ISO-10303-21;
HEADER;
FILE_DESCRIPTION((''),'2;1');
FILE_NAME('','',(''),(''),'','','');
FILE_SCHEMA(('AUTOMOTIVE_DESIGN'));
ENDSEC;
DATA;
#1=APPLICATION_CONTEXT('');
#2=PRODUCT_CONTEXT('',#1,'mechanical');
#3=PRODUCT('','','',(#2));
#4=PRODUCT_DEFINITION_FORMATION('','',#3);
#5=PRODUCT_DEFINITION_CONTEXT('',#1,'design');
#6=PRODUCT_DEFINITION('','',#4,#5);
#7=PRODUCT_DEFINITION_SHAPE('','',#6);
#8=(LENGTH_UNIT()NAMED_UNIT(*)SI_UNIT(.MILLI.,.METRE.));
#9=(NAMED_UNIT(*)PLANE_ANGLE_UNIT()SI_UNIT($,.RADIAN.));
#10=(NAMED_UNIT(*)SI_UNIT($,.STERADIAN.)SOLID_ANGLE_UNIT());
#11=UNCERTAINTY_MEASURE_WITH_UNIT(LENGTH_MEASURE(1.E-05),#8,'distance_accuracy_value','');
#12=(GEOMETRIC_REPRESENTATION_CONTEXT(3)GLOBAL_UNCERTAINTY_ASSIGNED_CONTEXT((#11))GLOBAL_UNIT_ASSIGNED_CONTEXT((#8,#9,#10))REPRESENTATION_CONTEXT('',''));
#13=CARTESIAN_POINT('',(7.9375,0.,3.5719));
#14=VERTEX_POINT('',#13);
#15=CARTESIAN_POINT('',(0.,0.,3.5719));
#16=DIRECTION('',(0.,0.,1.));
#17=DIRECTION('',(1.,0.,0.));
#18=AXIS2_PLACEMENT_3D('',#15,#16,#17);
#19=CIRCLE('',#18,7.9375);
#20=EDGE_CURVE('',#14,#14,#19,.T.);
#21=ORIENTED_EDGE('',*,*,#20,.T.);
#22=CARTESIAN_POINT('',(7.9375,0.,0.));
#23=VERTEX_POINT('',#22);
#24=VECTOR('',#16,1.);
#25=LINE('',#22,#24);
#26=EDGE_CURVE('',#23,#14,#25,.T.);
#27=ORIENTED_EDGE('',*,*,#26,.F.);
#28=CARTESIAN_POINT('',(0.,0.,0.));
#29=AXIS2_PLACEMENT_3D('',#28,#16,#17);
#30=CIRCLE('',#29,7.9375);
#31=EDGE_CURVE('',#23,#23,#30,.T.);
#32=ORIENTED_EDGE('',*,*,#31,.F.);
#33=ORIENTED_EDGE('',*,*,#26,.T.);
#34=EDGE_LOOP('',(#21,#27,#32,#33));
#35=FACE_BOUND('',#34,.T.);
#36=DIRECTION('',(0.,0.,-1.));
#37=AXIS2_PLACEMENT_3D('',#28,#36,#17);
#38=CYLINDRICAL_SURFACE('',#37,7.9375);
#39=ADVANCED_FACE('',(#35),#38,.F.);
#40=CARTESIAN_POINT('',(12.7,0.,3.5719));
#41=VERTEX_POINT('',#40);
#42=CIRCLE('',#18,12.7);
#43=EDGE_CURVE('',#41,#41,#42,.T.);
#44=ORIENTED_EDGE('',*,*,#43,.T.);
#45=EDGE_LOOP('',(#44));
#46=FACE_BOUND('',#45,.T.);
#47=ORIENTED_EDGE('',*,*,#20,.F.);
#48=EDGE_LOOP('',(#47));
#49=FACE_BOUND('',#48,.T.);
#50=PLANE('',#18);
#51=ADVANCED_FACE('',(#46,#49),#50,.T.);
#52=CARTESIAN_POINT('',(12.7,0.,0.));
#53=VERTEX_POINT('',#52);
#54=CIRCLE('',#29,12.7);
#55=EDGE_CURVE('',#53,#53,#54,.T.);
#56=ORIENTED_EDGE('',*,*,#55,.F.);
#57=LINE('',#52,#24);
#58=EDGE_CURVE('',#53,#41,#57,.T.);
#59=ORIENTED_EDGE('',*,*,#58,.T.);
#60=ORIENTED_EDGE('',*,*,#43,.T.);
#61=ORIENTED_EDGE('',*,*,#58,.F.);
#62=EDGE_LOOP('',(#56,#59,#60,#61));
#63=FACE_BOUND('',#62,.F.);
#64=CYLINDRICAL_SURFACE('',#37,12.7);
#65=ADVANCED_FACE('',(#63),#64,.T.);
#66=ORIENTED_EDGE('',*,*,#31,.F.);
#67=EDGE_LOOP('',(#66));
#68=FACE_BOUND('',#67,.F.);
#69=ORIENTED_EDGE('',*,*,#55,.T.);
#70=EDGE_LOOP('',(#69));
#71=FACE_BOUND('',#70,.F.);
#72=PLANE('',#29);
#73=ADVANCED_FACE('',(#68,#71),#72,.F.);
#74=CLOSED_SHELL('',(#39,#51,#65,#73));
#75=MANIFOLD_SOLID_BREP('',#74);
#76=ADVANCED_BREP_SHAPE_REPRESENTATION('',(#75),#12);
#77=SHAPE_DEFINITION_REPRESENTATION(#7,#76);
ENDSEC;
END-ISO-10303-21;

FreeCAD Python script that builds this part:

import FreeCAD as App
import Part
import Sketcher

V = App.Vector
Q = App.Units.Quantity

doc = App.newDocument("Part")
body = doc.addObject("PartDesign::Body", "Body")

# Sketch on XY plane
sketch1 = doc.addObject("Sketcher::SketchObject", "Sketch")
body.addObject(sketch1)
sketch1.AttachmentSupport = (doc.XY_Plane, [""])
sketch1.MapMode = "FlatFace"
sketch1.addGeometry(Part.Circle(V(0, 0, 0), V(0, 0, 1), 13), False)
sketch1.addGeometry(Part.Circle(V(0, 0, 0), V(0, 0, 1), 8), False)
sketch1.addConstraint(Sketcher.Constraint("Coincident", 0, 3, -1, 1))
sketch1.addConstraint(Sketcher.Constraint("Coincident", 1, 3, -1, 1))
sketch1.addConstraint(Sketcher.Constraint("Diameter", 0, Q("1 in")))
sketch1.addConstraint(Sketcher.Constraint("Diameter", 1, Q("0.625 in")))
pad1 = doc.addObject("PartDesign::Pad", "Pad")
body.addObject(pad1)
pad1.Profile = sketch1
pad1.Length = Q("0.140626 in")

doc.recompute()
